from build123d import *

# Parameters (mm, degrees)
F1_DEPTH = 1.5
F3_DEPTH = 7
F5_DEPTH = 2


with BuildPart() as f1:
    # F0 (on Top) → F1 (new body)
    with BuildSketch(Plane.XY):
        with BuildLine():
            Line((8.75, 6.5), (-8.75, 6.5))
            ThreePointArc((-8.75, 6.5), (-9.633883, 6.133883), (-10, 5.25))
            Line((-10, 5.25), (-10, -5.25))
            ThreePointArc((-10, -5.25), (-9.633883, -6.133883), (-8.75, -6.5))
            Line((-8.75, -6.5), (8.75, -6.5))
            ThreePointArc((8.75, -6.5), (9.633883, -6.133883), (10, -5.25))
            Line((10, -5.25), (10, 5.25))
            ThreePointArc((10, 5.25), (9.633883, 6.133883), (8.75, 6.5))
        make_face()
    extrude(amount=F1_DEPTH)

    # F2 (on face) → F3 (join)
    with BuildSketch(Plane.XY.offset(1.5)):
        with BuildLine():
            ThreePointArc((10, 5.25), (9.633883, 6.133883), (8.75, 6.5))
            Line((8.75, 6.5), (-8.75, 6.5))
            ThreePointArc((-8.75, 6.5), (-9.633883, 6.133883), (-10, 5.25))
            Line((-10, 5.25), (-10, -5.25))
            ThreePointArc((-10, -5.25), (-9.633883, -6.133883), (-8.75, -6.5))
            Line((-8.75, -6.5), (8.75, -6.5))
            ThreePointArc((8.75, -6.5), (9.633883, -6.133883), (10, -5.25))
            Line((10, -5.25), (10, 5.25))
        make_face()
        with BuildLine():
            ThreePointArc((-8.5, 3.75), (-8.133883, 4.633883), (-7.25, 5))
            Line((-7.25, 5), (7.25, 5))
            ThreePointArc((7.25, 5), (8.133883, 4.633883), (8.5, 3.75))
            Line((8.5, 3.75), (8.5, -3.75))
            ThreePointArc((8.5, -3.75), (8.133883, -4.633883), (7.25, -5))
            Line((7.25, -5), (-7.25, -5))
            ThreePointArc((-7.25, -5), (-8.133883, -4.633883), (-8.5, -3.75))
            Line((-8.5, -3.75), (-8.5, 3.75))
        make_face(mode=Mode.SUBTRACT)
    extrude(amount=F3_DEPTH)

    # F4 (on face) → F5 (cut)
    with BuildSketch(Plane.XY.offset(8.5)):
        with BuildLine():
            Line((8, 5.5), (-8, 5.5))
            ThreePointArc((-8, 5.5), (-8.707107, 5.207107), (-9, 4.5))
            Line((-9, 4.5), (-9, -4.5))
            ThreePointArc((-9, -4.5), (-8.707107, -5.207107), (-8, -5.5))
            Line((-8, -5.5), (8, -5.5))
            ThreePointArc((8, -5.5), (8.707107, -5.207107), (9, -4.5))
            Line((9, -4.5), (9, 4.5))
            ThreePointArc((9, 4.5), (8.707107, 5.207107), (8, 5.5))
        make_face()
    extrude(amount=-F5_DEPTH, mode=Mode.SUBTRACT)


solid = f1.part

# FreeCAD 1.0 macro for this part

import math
import FreeCAD as App
import Part
import Sketcher
from FreeCAD import Vector

doc = App.newDocument("Part")
params = doc.addObject("Spreadsheet::Sheet", "Params")
for row, (alias, value) in enumerate([
    ("sketch1_radius", "1.250002 mm"),
    ("sketch1_width", "17.5 mm"),
    ("sketch1_height", "10.5 mm"),
    ("pad1_length", "1.5 mm"),
    ("sketch2_radius", "1.250002 mm"),
    ("sketch2_width", "17.5 mm"),
    ("sketch2_width2", "14.5 mm"),
    ("sketch2_height", "10.5 mm"),
    ("sketch2_height2", "7.5 mm"),
    ("pad2_length", "7 mm"),
    ("sketch3_radius", "0.999999 mm"),
    ("sketch3_width", "16 mm"),
    ("sketch3_height", "9 mm"),
    ("pocket1_length", "2 mm"),
], start=1):
    params.set(f"A{row}", alias)
    params.set(f"B{row}", "=" + value)
    params.setAlias(f"B{row}", alias)

body = doc.addObject("PartDesign::Body", "Body")

sketch1 = body.newObject("Sketcher::SketchObject", "Sketch")
sketch1.AttachmentSupport = (doc.getObject("XY_Plane"), [""])
sketch1.MapMode = "FlatFace"
sketch1.addGeometry(Part.LineSegment(Vector(8.8, 6.5, 0), Vector(-8.8, 6.5, 0)), False)
sketch1.addGeometry(Part.ArcOfCircle(Part.Circle(Vector(-8.7, 5.2, 0), Vector(0, 0, 1), 1.3), math.radians(90), math.radians(180)), False)
sketch1.addGeometry(Part.LineSegment(Vector(-10, 5.2, 0), Vector(-10, -5.2, 0)), False)
sketch1.addGeometry(Part.ArcOfCircle(Part.Circle(Vector(-8.7, -5.2, 0), Vector(0, 0, 1), 1.3), math.radians(-180), math.radians(-90)), False)
sketch1.addGeometry(Part.LineSegment(Vector(-8.8, -6.5, 0), Vector(8.8, -6.5, 0)), False)
sketch1.addGeometry(Part.ArcOfCircle(Part.Circle(Vector(8.7, -5.2, 0), Vector(0, 0, 1), 1.3), math.radians(-90), math.radians(0)), False)
sketch1.addGeometry(Part.LineSegment(Vector(10, -5.2, 0), Vector(10, 5.2, 0)), False)
sketch1.addGeometry(Part.ArcOfCircle(Part.Circle(Vector(8.7, 5.2, 0), Vector(0, 0, 1), 1.3), math.radians(0), math.radians(90)), False)
sketch1.addConstraint(Sketcher.Constraint("Tangent", 0, 2, 1, 1))
sketch1.addConstraint(Sketcher.Constraint("Tangent", 1, 2, 2, 1))
sketch1.addConstraint(Sketcher.Constraint("Tangent", 2, 2, 3, 1))
sketch1.addConstraint(Sketcher.Constraint("Tangent", 3, 2, 4, 1))
sketch1.addConstraint(Sketcher.Constraint("Tangent", 4, 2, 5, 1))
sketch1.addConstraint(Sketcher.Constraint("Tangent", 5, 2, 6, 1))
sketch1.addConstraint(Sketcher.Constraint("Tangent", 6, 2, 7, 1))
sketch1.addConstraint(Sketcher.Constraint("Tangent", 7, 2, 0, 1))
sketch1.addConstraint(Sketcher.Constraint("Horizontal", 0))
sketch1.addConstraint(Sketcher.Constraint("Vertical", 2))
sketch1.addConstraint(Sketcher.Constraint("Horizontal", 4))
sketch1.addConstraint(Sketcher.Constraint("Vertical", 6))
sketch1.addConstraint(Sketcher.Constraint("Equal", 1, 3))
sketch1.addConstraint(Sketcher.Constraint("Equal", 3, 5))
sketch1.addConstraint(Sketcher.Constraint("Equal", 5, 7))
sketch1.addConstraint(Sketcher.Constraint("Symmetric", 1, 3, 5, 3, -1, 1))
sketch1.addConstraint(Sketcher.Constraint("Radius", 1, 1.250002))
sketch1.addConstraint(Sketcher.Constraint("DistanceX", 0, 2, 0, 1, 17.5))
sketch1.addConstraint(Sketcher.Constraint("DistanceY", 2, 2, 2, 1, 10.5))
sketch1.setExpression("Constraints[16]", "Params.sketch1_radius")
sketch1.setExpression("Constraints[17]", "Params.sketch1_width")
sketch1.setExpression("Constraints[18]", "Params.sketch1_height")
pad1 = body.newObject("PartDesign::Pad", "Pad")
pad1.Profile = sketch1
pad1.setExpression("Length", "Params.pad1_length")

sketch2 = body.newObject("Sketcher::SketchObject", "Sketch001")
sketch2.AttachmentSupport = (doc.getObject("XY_Plane"), [""])
sketch2.MapMode = "FlatFace"
sketch2.AttachmentOffset = App.Placement(Vector(0, 0, 1.5), App.Rotation())
sketch2.addGeometry(Part.ArcOfCircle(Part.Circle(Vector(8.7, 5.2, 0), Vector(0, 0, 1), 1.3), math.radians(0), math.radians(90)), False)
sketch2.addGeometry(Part.LineSegment(Vector(8.8, 6.5, 0), Vector(-8.8, 6.5, 0)), False)
sketch2.addGeometry(Part.ArcOfCircle(Part.Circle(Vector(-8.7, 5.2, 0), Vector(0, 0, 1), 1.3), math.radians(90), math.radians(180)), False)
sketch2.addGeometry(Part.LineSegment(Vector(-10, 5.2, 0), Vector(-10, -5.2, 0)), False)
sketch2.addGeometry(Part.ArcOfCircle(Part.Circle(Vector(-8.7, -5.2, 0), Vector(0, 0, 1), 1.3), math.radians(-180), math.radians(-90)), False)
sketch2.addGeometry(Part.LineSegment(Vector(-8.8, -6.5, 0), Vector(8.8, -6.5, 0)), False)
sketch2.addGeometry(Part.ArcOfCircle(Part.Circle(Vector(8.7, -5.2, 0), Vector(0, 0, 1), 1.3), math.radians(-90), math.radians(0)), False)
sketch2.addGeometry(Part.LineSegment(Vector(10, -5.2, 0), Vector(10, 5.2, 0)), False)
sketch2.addGeometry(Part.LineSegment(Vector(-8.5, -3.8, 0), Vector(-8.5, 3.8, 0)), False)
sketch2.addGeometry(Part.ArcOfCircle(Part.Circle(Vector(-7.2, 3.7, 0), Vector(0, 0, 1), 1.3), math.radians(90), math.radians(180)), False)
sketch2.addGeometry(Part.LineSegment(Vector(-7.2, 5, 0), Vector(7.2, 5, 0)), False)
sketch2.addGeometry(Part.ArcOfCircle(Part.Circle(Vector(7.2, 3.7, 0), Vector(0, 0, 1), 1.3), math.radians(0), math.radians(90)), False)
sketch2.addGeometry(Part.LineSegment(Vector(8.5, 3.8, 0), Vector(8.5, -3.8, 0)), False)
sketch2.addGeometry(Part.ArcOfCircle(Part.Circle(Vector(7.2, -3.7, 0), Vector(0, 0, 1), 1.3), math.radians(-90), math.radians(0)), False)
sketch2.addGeometry(Part.LineSegment(Vector(7.2, -5, 0), Vector(-7.2, -5, 0)), False)
sketch2.addGeometry(Part.ArcOfCircle(Part.Circle(Vector(-7.2, -3.7, 0), Vector(0, 0, 1), 1.3), math.radians(-180), math.radians(-90)), False)
sketch2.addConstraint(Sketcher.Constraint("Tangent", 0, 2, 1, 1))
sketch2.addConstraint(Sketcher.Constraint("Tangent", 1, 2, 2, 1))
sketch2.addConstraint(Sketcher.Constraint("Tangent", 2, 2, 3, 1))
sketch2.addConstraint(Sketcher.Constraint("Tangent", 3, 2, 4, 1))
sketch2.addConstraint(Sketcher.Constraint("Tangent", 4, 2, 5, 1))
sketch2.addConstraint(Sketcher.Constraint("Tangent", 5, 2, 6, 1))
sketch2.addConstraint(Sketcher.Constraint("Tangent", 6, 2, 7, 1))
sketch2.addConstraint(Sketcher.Constraint("Tangent", 7, 2, 0, 1))
sketch2.addConstraint(Sketcher.Constraint("Tangent", 8, 2, 9, 2))
sketch2.addConstraint(Sketcher.Constraint("Tangent", 9, 1, 10, 1))
sketch2.addConstraint(Sketcher.Constraint("Tangent", 10, 2, 11, 2))
sketch2.addConstraint(Sketcher.Constraint("Tangent", 11, 1, 12, 1))
sketch2.addConstraint(Sketcher.Constraint("Tangent", 12, 2, 13, 2))
sketch2.addConstraint(Sketcher.Constraint("Tangent", 13, 1, 14, 1))
sketch2.addConstraint(Sketcher.Constraint("Tangent", 14, 2, 15, 2))
sketch2.addConstraint(Sketcher.Constraint("Tangent", 15, 1, 8, 1))
sketch2.addConstraint(Sketcher.Constraint("Horizontal", 1))
sketch2.addConstraint(Sketcher.Constraint("Vertical", 3))
sketch2.addConstraint(Sketcher.Constraint("Horizontal", 5))
sketch2.addConstraint(Sketcher.Constraint("Vertical", 7))
sketch2.addConstraint(Sketcher.Constraint("Vertical", 8))
sketch2.addConstraint(Sketcher.Constraint("Horizontal", 10))
sketch2.addConstraint(Sketcher.Constraint("Vertical", 12))
sketch2.addConstraint(Sketcher.Constraint("Horizontal", 14))
sketch2.addConstraint(Sketcher.Constraint("Equal", 0, 2))
sketch2.addConstraint(Sketcher.Constraint("Equal", 2, 4))
sketch2.addConstraint(Sketcher.Constraint("Equal", 4, 6))
sketch2.addConstraint(Sketcher.Constraint("Equal", 6, 9))
sketch2.addConstraint(Sketcher.Constraint("Equal", 9, 11))
sketch2.addConstraint(Sketcher.Constraint("Equal", 11, 13))
sketch2.addConstraint(Sketcher.Constraint("Equal", 13, 15))
sketch2.addConstraint(Sketcher.Constraint("Symmetric", 0, 3, 4, 3, -1, 1))
sketch2.addConstraint(Sketcher.Constraint("Symmetric", 9, 3, 13, 3, -1, 1))
sketch2.addConstraint(Sketcher.Constraint("Radius", 0, 1.250002))
sketch2.addConstraint(Sketcher.Constraint("DistanceX", 1, 2, 1, 1, 17.5))
sketch2.addConstraint(Sketcher.Constraint("DistanceX", 10, 1, 10, 2, 14.5))
sketch2.addConstraint(Sketcher.Constraint("DistanceY", 3, 2, 3, 1, 10.5))
sketch2.addConstraint(Sketcher.Constraint("DistanceY", 8, 1, 8, 2, 7.5))
sketch2.setExpression("Constraints[33]", "Params.sketch2_radius")
sketch2.setExpression("Constraints[34]", "Params.sketch2_width")
sketch2.setExpression("Constraints[35]", "Params.sketch2_width2")
sketch2.setExpression("Constraints[36]", "Params.sketch2_height")
sketch2.setExpression("Constraints[37]", "Params.sketch2_height2")
pad2 = body.newObject("PartDesign::Pad", "Pad001")
pad2.Profile = sketch2
pad2.setExpression("Length", "Params.pad2_length")

sketch3 = body.newObject("Sketcher::SketchObject", "Sketch002")
sketch3.AttachmentSupport = (doc.getObject("XY_Plane"), [""])
sketch3.MapMode = "FlatFace"
sketch3.AttachmentOffset = App.Placement(Vector(0, 0, 8.5), App.Rotation())
sketch3.addGeometry(Part.LineSegment(Vector(8, 5.5, 0), Vector(-8, 5.5, 0)), False)
sketch3.addGeometry(Part.ArcOfCircle(Part.Circle(Vector(-8, 4.5, 0), Vector(0, 0, 1), 1), math.radians(90), math.radians(180)), False)
sketch3.addGeometry(Part.LineSegment(Vector(-9, 4.5, 0), Vector(-9, -4.5, 0)), False)
sketch3.addGeometry(Part.ArcOfCircle(Part.Circle(Vector(-8, -4.5, 0), Vector(0, 0, 1), 1), math.radians(180), math.radians(270)), False)
sketch3.addGeometry(Part.LineSegment(Vector(-8, -5.5, 0), Vector(8, -5.5, 0)), False)
sketch3.addGeometry(Part.ArcOfCircle(Part.Circle(Vector(8, -4.5, 0), Vector(0, 0, 1), 1), math.radians(-90), math.radians(0)), False)
sketch3.addGeometry(Part.LineSegment(Vector(9, -4.5, 0), Vector(9, 4.5, 0)), False)
sketch3.addGeometry(Part.ArcOfCircle(Part.Circle(Vector(8, 4.5, 0), Vector(0, 0, 1), 1), math.radians(0), math.radians(90)), False)
sketch3.addConstraint(Sketcher.Constraint("Tangent", 0, 2, 1, 1))
sketch3.addConstraint(Sketcher.Constraint("Tangent", 1, 2, 2, 1))
sketch3.addConstraint(Sketcher.Constraint("Tangent", 2, 2, 3, 1))
sketch3.addConstraint(Sketcher.Constraint("Tangent", 3, 2, 4, 1))
sketch3.addConstraint(Sketcher.Constraint("Tangent", 4, 2, 5, 1))
sketch3.addConstraint(Sketcher.Constraint("Tangent", 5, 2, 6, 1))
sketch3.addConstraint(Sketcher.Constraint("Tangent", 6, 2, 7, 1))
sketch3.addConstraint(Sketcher.Constraint("Tangent", 7, 2, 0, 1))
sketch3.addConstraint(Sketcher.Constraint("Horizontal", 0))
sketch3.addConstraint(Sketcher.Constraint("Vertical", 2))
sketch3.addConstraint(Sketcher.Constraint("Horizontal", 4))
sketch3.addConstraint(Sketcher.Constraint("Vertical", 6))
sketch3.addConstraint(Sketcher.Constraint("Equal", 1, 3))
sketch3.addConstraint(Sketcher.Constraint("Equal", 3, 5))
sketch3.addConstraint(Sketcher.Constraint("Equal", 5, 7))
sketch3.addConstraint(Sketcher.Constraint("Symmetric", 1, 3, 5, 3, -1, 1))
sketch3.addConstraint(Sketcher.Constraint("Radius", 1, 0.999999))
sketch3.addConstraint(Sketcher.Constraint("DistanceX", 0, 2, 0, 1, 16.0))
sketch3.addConstraint(Sketcher.Constraint("DistanceY", 2, 2, 2, 1, 9.0))
sketch3.setExpression("Constraints[16]", "Params.sketch3_radius")
sketch3.setExpression("Constraints[17]", "Params.sketch3_width")
sketch3.setExpression("Constraints[18]", "Params.sketch3_height")
pocket1 = body.newObject("PartDesign::Pocket", "Pocket")
pocket1.Profile = sketch3
pocket1.setExpression("Length", "Params.pocket1_length")

doc.recompute()
